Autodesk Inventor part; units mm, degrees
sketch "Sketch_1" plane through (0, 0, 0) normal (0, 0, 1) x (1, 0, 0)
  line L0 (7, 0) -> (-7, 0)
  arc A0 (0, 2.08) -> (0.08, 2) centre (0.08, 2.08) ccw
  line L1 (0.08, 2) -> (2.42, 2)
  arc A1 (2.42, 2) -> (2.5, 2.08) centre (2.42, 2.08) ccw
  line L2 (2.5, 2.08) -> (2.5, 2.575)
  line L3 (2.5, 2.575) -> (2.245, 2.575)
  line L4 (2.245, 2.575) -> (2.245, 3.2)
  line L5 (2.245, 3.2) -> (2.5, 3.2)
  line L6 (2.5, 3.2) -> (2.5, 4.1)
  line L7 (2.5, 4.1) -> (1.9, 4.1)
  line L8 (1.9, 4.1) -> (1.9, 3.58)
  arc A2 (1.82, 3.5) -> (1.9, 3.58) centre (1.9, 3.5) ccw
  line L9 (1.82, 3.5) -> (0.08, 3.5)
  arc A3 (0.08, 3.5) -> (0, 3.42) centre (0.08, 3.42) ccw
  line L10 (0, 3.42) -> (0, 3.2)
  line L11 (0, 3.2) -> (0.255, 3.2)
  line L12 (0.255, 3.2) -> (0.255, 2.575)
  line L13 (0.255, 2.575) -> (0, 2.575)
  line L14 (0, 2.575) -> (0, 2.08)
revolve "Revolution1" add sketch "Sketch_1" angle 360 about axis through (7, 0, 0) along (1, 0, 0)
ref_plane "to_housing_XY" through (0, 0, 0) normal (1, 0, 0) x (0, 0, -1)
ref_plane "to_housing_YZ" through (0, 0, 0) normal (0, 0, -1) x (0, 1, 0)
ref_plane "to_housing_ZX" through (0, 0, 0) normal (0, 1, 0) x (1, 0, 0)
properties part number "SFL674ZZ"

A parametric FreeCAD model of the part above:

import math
import FreeCAD as App
import Part
import Sketcher
Q = App.Units.Quantity

doc = App.newDocument("Part")
body = doc.addObject("PartDesign::Body", "Body")

# Sketch on XY plane
sketch1 = doc.addObject("Sketcher::SketchObject", "Sketch")
body.addObject(sketch1)
sketch1.AttachmentSupport = (doc.XY_Plane, [""])
sketch1.MapMode = "FlatFace"
sketch1.addGeometry([
    Part.LineSegment(App.Vector(0, 2.575, 0), App.Vector(0, 2.08, 0)),  # 0
    Part.ArcOfCircle(Part.Circle(App.Vector(0.08, 2.08, 0), App.Vector(0, 0, 1), 0.08), math.radians(180), math.radians(270)),  # 1
    Part.LineSegment(App.Vector(0.08, 2, 0), App.Vector(2.42, 2, 0)),  # 2
    Part.ArcOfCircle(Part.Circle(App.Vector(2.42, 2.08, 0), App.Vector(0, 0, 1), 0.08), math.radians(-90), math.radians(0)),  # 3
    Part.LineSegment(App.Vector(2.5, 2.08, 0), App.Vector(2.5, 2.575, 0)),  # 4
    Part.LineSegment(App.Vector(2.5, 2.575, 0), App.Vector(2.245, 2.575, 0)),  # 5
    Part.LineSegment(App.Vector(2.245, 2.575, 0), App.Vector(2.245, 3.2, 0)),  # 6
    Part.LineSegment(App.Vector(2.245, 3.2, 0), App.Vector(2.5, 3.2, 0)),  # 7
    Part.LineSegment(App.Vector(2.5, 3.2, 0), App.Vector(2.5, 4.1, 0)),  # 8
    Part.LineSegment(App.Vector(2.5, 4.1, 0), App.Vector(1.9, 4.1, 0)),  # 9
    Part.LineSegment(App.Vector(1.9, 4.1, 0), App.Vector(1.9, 3.58, 0)),  # 10
    Part.ArcOfCircle(Part.Circle(App.Vector(1.9, 3.5, 0), App.Vector(0, 0, 1), 0.08), math.radians(180), math.radians(450)),  # 11
    Part.LineSegment(App.Vector(1.82, 3.5, 0), App.Vector(0.08, 3.5, 0)),  # 12
    Part.ArcOfCircle(Part.Circle(App.Vector(0.08, 3.42, 0), App.Vector(0, 0, 1), 0.08), math.radians(90), math.radians(180)),  # 13
    Part.LineSegment(App.Vector(0, 3.42, 0), App.Vector(0, 3.2, 0)),  # 14
    Part.LineSegment(App.Vector(0, 3.2, 0), App.Vector(0.255, 3.2, 0)),  # 15
    Part.LineSegment(App.Vector(0.255, 3.2, 0), App.Vector(0.255, 2.575, 0)),  # 16
    Part.LineSegment(App.Vector(0.255, 2.575, 0), App.Vector(0, 2.575, 0)),  # 17
], False)
sketch1.addConstraint([
    Sketcher.Constraint("Tangent", 0, 2, 1, 1),
    Sketcher.Constraint("Tangent", 1, 2, 2, 1),
    Sketcher.Constraint("Tangent", 2, 2, 3, 1),
    Sketcher.Constraint("Tangent", 3, 2, 4, 1),
    Sketcher.Constraint("Coincident", 4, 2, 5, 1),
    Sketcher.Constraint("Coincident", 5, 2, 6, 1),
    Sketcher.Constraint("Coincident", 6, 2, 7, 1),
    Sketcher.Constraint("Coincident", 7, 2, 8, 1),
    Sketcher.Constraint("Coincident", 8, 2, 9, 1),
    Sketcher.Constraint("Coincident", 9, 2, 10, 1),
    Sketcher.Constraint("Coincident", 10, 2, 11, 2),
    Sketcher.Constraint("Coincident", 11, 1, 12, 1),
    Sketcher.Constraint("Tangent", 12, 2, 13, 1),
    Sketcher.Constraint("Tangent", 13, 2, 14, 1),
    Sketcher.Constraint("Coincident", 14, 2, 15, 1),
    Sketcher.Constraint("Coincident", 15, 2, 16, 1),
    Sketcher.Constraint("Coincident", 16, 2, 17, 1),
    Sketcher.Constraint("Coincident", 17, 2, 0, 1),
    Sketcher.Constraint("Vertical", 0),
    Sketcher.Constraint("Horizontal", 2),
    Sketcher.Constraint("Vertical", 4),
    Sketcher.Constraint("Horizontal", 5),
    Sketcher.Constraint("Vertical", 6),
    Sketcher.Constraint("Horizontal", 7),
    Sketcher.Constraint("Vertical", 8),
    Sketcher.Constraint("Horizontal", 9),
    Sketcher.Constraint("Vertical", 10),
    Sketcher.Constraint("Horizontal", 12),
    Sketcher.Constraint("Vertical", 14),
    Sketcher.Constraint("Horizontal", 15),
    Sketcher.Constraint("Vertical", 16),
    Sketcher.Constraint("Horizontal", 17),
    Sketcher.Constraint("Equal", 1, 3),
    Sketcher.Constraint("Equal", 3, 11),
    Sketcher.Constraint("Equal", 11, 13),
    Sketcher.Constraint("PointOnObject", 0, 2, -2),
    Sketcher.Constraint("PointOnObject", 13, 2, -2),
    Sketcher.Constraint("Horizontal", 7, 2, 14, 2),
    Sketcher.Constraint("Horizontal", 5, 2, 16, 2),
    Sketcher.Constraint("Vertical", 4, 2, 7, 2),
    Sketcher.Constraint("Vertical", 11, 3, 9, 2),
    Sketcher.Constraint("Equal", 7, 15),
    Sketcher.Constraint("Radius", 1, Q("0.08 mm")),
    Sketcher.Constraint("DistanceX", 9, 2, 9, 1, Q("0.6 mm")),
    Sketcher.Constraint("DistanceY", 8, 1, 8, 2, Q("0.9 mm")),
    Sketcher.Constraint("DistanceY", -1, 1, 1, 2, Q("2 mm")),
    Sketcher.Constraint("DistanceX", 2, 1, 2, 2, Q("2.34 mm")),
    Sketcher.Constraint("DistanceY", 10, 2, 10, 1, Q("0.52 mm")),
    Sketcher.Constraint("DistanceY", 14, 2, 14, 1, Q("0.22 mm")),
    Sketcher.Constraint("DistanceY", -1, 1, 11, 3, Q("3.5 mm")),
    Sketcher.Constraint("DistanceX", 5, 2, 5, 1, Q("0.255 mm")),
    Sketcher.Constraint("DistanceY", 0, 2, 0, 1, Q("0.495 mm")),
])
revolution = doc.addObject("PartDesign::Revolution", "Revolution")
body.addObject(revolution)
revolution.Profile = sketch1
revolution.ReferenceAxis = (sketch1, ["H_Axis"])
revolution.Angle = 360

doc.recompute()
